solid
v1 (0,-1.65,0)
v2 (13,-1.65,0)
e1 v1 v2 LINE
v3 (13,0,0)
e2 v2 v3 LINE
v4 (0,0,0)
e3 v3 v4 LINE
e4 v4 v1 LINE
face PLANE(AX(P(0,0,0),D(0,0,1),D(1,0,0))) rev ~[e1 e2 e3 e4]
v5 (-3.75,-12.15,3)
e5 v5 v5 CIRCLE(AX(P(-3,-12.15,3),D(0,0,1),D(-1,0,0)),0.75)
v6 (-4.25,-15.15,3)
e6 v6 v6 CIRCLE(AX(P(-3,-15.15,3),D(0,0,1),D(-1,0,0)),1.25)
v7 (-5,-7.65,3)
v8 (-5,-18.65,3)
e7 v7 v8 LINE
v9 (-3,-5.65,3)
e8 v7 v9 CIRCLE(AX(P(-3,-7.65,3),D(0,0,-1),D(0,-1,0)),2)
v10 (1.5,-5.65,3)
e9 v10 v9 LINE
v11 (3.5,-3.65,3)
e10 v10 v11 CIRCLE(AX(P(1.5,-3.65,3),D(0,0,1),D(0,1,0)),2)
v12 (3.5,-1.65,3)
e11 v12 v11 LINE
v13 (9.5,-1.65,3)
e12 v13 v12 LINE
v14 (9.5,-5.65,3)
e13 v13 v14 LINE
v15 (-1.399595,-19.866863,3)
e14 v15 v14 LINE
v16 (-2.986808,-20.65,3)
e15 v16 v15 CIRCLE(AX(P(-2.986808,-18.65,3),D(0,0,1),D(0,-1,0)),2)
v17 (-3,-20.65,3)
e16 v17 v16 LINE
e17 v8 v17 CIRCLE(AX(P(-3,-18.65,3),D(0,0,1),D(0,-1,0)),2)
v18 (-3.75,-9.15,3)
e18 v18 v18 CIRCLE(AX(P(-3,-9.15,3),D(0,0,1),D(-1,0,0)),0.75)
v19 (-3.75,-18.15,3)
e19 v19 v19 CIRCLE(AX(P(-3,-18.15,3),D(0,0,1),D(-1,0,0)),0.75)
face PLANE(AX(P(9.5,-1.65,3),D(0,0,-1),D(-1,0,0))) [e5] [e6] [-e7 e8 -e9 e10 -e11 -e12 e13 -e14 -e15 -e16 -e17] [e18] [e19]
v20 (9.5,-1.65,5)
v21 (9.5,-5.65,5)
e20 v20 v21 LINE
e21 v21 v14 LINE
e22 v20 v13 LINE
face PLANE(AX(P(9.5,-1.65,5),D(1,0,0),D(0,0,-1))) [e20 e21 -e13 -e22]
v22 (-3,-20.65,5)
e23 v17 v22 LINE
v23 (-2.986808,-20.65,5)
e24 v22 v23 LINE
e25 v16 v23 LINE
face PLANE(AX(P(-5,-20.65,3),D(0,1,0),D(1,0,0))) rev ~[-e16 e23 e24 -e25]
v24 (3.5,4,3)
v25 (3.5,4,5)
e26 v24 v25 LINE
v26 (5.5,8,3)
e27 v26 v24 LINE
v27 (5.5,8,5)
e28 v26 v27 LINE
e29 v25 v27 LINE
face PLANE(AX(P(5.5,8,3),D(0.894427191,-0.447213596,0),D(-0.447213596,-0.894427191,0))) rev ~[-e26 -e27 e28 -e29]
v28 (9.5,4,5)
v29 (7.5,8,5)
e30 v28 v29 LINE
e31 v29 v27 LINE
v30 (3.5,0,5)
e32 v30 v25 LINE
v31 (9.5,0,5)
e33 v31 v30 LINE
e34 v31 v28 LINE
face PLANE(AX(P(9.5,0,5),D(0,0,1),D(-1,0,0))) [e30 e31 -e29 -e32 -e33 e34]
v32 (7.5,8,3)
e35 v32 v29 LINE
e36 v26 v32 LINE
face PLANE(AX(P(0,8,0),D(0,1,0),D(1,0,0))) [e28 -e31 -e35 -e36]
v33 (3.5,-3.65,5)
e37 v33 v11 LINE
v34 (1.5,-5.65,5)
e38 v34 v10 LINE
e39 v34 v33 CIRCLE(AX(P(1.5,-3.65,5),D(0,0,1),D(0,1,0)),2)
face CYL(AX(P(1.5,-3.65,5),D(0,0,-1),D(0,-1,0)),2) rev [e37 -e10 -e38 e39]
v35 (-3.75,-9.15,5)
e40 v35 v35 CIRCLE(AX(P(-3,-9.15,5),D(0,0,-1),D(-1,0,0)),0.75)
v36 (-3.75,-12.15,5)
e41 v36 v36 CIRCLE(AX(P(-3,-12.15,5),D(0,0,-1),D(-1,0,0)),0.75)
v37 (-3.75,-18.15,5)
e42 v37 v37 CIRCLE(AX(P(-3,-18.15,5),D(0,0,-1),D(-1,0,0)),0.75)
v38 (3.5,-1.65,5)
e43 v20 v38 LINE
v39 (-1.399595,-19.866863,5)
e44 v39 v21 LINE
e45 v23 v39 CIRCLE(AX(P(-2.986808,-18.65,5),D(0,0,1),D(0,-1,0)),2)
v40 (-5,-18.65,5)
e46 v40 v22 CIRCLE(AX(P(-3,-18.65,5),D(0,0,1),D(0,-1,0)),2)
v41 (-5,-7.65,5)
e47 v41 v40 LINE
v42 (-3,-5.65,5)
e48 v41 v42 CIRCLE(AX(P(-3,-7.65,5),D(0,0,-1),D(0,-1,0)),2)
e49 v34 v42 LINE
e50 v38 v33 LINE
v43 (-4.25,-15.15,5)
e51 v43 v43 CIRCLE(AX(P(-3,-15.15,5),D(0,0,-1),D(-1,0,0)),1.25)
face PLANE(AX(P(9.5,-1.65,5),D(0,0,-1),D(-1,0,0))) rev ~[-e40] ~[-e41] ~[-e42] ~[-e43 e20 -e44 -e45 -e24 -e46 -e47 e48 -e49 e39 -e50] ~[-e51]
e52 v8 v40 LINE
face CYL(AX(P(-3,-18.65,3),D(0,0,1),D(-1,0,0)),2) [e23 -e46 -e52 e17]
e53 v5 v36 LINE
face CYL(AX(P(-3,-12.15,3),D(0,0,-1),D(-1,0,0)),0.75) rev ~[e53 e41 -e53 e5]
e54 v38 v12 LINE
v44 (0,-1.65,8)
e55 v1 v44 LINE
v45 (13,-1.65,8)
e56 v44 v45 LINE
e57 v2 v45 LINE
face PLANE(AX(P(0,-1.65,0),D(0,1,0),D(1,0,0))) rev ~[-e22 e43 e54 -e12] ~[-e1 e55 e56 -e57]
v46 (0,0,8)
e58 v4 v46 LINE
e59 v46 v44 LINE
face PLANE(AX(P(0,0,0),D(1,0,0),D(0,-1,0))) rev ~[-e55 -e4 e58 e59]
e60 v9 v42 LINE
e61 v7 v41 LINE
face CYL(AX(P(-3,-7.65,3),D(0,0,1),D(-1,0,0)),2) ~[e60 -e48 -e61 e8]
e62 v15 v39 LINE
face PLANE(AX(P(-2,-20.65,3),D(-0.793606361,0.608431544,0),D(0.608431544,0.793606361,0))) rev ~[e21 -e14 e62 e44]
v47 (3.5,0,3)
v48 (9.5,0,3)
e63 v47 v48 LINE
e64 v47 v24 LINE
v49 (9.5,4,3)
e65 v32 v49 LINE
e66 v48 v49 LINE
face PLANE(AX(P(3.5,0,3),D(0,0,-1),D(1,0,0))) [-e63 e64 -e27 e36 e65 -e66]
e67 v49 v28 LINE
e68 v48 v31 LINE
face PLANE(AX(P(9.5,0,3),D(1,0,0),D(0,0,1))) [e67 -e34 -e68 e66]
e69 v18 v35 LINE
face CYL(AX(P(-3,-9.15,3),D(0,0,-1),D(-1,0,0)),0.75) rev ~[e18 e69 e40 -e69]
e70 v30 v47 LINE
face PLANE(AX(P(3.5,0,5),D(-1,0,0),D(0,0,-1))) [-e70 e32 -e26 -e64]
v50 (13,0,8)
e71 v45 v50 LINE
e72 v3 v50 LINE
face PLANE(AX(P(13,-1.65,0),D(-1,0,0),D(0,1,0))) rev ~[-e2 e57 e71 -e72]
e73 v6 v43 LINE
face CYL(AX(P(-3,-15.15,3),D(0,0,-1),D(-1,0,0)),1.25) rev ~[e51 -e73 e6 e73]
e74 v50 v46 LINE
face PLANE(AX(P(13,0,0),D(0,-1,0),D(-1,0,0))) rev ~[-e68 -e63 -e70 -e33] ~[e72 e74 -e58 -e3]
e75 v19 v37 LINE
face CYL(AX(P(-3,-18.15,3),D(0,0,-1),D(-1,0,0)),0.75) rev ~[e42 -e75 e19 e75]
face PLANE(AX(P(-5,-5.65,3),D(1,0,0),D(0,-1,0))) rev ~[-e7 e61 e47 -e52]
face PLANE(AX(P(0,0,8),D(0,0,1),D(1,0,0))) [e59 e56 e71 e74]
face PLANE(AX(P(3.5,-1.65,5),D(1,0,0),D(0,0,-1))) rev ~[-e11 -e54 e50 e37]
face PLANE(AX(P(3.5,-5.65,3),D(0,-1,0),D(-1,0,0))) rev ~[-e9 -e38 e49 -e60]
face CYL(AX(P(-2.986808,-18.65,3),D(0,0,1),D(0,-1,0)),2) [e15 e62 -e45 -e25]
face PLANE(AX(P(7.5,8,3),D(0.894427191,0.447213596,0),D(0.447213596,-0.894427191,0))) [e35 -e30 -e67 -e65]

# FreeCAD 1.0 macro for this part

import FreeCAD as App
import Part
import Sketcher

V = App.Vector
Q = App.Units.Quantity


def edges_at(feature, points):
    """Names of the edges that pass closest to the given points."""
    edges = feature.Shape.Edges
    near = lambda p: min(range(len(edges)), key=lambda i: edges[i].distToShape(Part.Vertex(*p))[0])
    return sorted({f"Edge{near(p) + 1}" for p in points})

doc = App.newDocument("Part")
body = doc.addObject("PartDesign::Body", "Body")

# Sketch on XY plane
sketch1 = doc.addObject("Sketcher::SketchObject", "Sketch")
body.addObject(sketch1)
sketch1.AttachmentSupport = (doc.XY_Plane, [""])
sketch1.MapMode = "FlatFace"
sketch1.addGeometry([
    Part.LineSegment(V(13, 0, 0), V(0, 0, 0)),
    Part.LineSegment(V(0, 0, 0), V(0, -1.65, 0)),
    Part.LineSegment(V(0, -1.65, 0), V(13, -1.65, 0)),
    Part.LineSegment(V(13, -1.65, 0), V(13, 0, 0)),
], False)
sketch1.addConstraint([
    Sketcher.Constraint("Coincident", 0, 2, 1, 1),
    Sketcher.Constraint("Coincident", 1, 2, 2, 1),
    Sketcher.Constraint("Coincident", 2, 2, 3, 1),
    Sketcher.Constraint("Coincident", 3, 2, 0, 1),
    Sketcher.Constraint("Horizontal", 0),
    Sketcher.Constraint("Vertical", 1),
    Sketcher.Constraint("Horizontal", 2),
    Sketcher.Constraint("Vertical", 3),
    Sketcher.Constraint("Coincident", 0, 2, -1, 1),
    Sketcher.Constraint("DistanceX", 0, 2, 0, 1, Q("13 mm")),
    Sketcher.Constraint("DistanceY", 1, 2, 1, 1, Q("1.65 mm")),
])
pad1 = doc.addObject("PartDesign::Pad", "Pad")
body.addObject(pad1)
pad1.Profile = sketch1
pad1.Length = 8

# Sketch on XZ plane
sketch2 = doc.addObject("Sketcher::SketchObject", "Sketch001")
body.addObject(sketch2)
sketch2.AttachmentSupport = (doc.XZ_Plane, [""])
sketch2.MapMode = "FlatFace"
sketch2.addGeometry([
    Part.LineSegment(V(9.5, 3, 0), V(3.5, 3, 0)),
    Part.LineSegment(V(3.5, 3, 0), V(3.5, 5, 0)),
    Part.LineSegment(V(3.5, 5, 0), V(9.5, 5, 0)),
    Part.LineSegment(V(9.5, 5, 0), V(9.5, 3, 0)),
], False)
sketch2.addConstraint([
    Sketcher.Constraint("Coincident", 0, 2, 1, 1),
    Sketcher.Constraint("Coincident", 1, 2, 2, 1),
    Sketcher.Constraint("Coincident", 2, 2, 3, 1),
    Sketcher.Constraint("Coincident", 3, 2, 0, 1),
    Sketcher.Constraint("Horizontal", 0),
    Sketcher.Constraint("Vertical", 1),
    Sketcher.Constraint("Horizontal", 2),
    Sketcher.Constraint("Vertical", 3),
    Sketcher.Constraint("DistanceY", -1, 1, 0, 2, Q("3 mm")),
    Sketcher.Constraint("DistanceX", -1, 1, 0, 2, Q("3.5 mm")),
    Sketcher.Constraint("DistanceX", 0, 2, 0, 1, Q("6 mm")),
    Sketcher.Constraint("DistanceY", 1, 1, 1, 2, Q("2 mm")),
])
pad2 = doc.addObject("PartDesign::Pad", "Pad001")
body.addObject(pad2)
pad2.Profile = sketch2
pad2.Length = 8
pad2.Reversed = True

# Sketch on XZ plane
sketch3 = doc.addObject("Sketcher::SketchObject", "Sketch002")
body.addObject(sketch3)
sketch3.AttachmentSupport = (doc.XZ_Plane, [""])
sketch3.MapMode = "FlatFace"
sketch3.AttachmentOffset = App.Placement(V(0, 0, 1.65), App.Rotation())
sketch3.addGeometry([
    Part.LineSegment(V(9.5, 3, 0), V(9.5, 5, 0)),
    Part.LineSegment(V(9.5, 5, 0), V(3.5, 5, 0)),
    Part.LineSegment(V(3.5, 5, 0), V(3.5, 3, 0)),
    Part.LineSegment(V(3.5, 3, 0), V(9.5, 3, 0)),
], False)
sketch3.addConstraint([
    Sketcher.Constraint("Coincident", 0, 2, 1, 1),
    Sketcher.Constraint("Coincident", 1, 2, 2, 1),
    Sketcher.Constraint("Coincident", 2, 2, 3, 1),
    Sketcher.Constraint("Coincident", 3, 2, 0, 1),
    Sketcher.Constraint("Vertical", 0),
    Sketcher.Constraint("Horizontal", 1),
    Sketcher.Constraint("Vertical", 2),
    Sketcher.Constraint("Horizontal", 3),
    Sketcher.Constraint("DistanceX", 1, 2, 1, 1, Q("6 mm")),
    Sketcher.Constraint("DistanceY", 0, 1, 0, 2, Q("2 mm")),
    Sketcher.Constraint("DistanceY", -1, 1, 0, 2, Q("5 mm")),
    Sketcher.Constraint("DistanceX", -1, 1, 0, 2, Q("9.5 mm")),
])
pad3 = doc.addObject("PartDesign::Pad", "Pad002")
body.addObject(pad3)
pad3.Profile = sketch3
pad3.Length = 4

# Sketch on XY plane
sketch4 = doc.addObject("Sketcher::SketchObject", "Sketch003")
body.addObject(sketch4)
sketch4.AttachmentSupport = (doc.XY_Plane, [""])
sketch4.MapMode = "FlatFace"
sketch4.AttachmentOffset = App.Placement(V(0, 0, 3), App.Rotation())
sketch4.addGeometry([
    Part.LineSegment(V(-5, -5.65, 0), V(9.5, -5.65, 0)),
    Part.LineSegment(V(9.5, -5.65, 0), V(-2, -20.65, 0)),
    Part.LineSegment(V(-2, -20.65, 0), V(-5, -20.65, 0)),
    Part.LineSegment(V(-5, -20.65, 0), V(-5, -5.65, 0)),
], False)
sketch4.addConstraint([
    Sketcher.Constraint("Coincident", 0, 2, 1, 1),
    Sketcher.Constraint("Coincident", 1, 2, 2, 1),
    Sketcher.Constraint("Coincident", 2, 2, 3, 1),
    Sketcher.Constraint("Coincident", 3, 2, 0, 1),
    Sketcher.Constraint("Horizontal", 0),
    Sketcher.Constraint("Horizontal", 2),
    Sketcher.Constraint("Vertical", 3),
    Sketcher.Constraint("DistanceX", 2, 2, 2, 1, Q("3 mm")),
    Sketcher.Constraint("DistanceY", 3, 1, 3, 2, Q("15 mm")),
    Sketcher.Constraint("DistanceX", 0, 1, 0, 2, Q("14.5 mm")),
    Sketcher.Constraint("DistanceX", 1, 2, -1, 1, Q("2 mm")),
    Sketcher.Constraint("DistanceY", 0, 2, -1, 1, Q("5.65 mm")),
])
pad4 = doc.addObject("PartDesign::Pad", "Pad003")
body.addObject(pad4)
pad4.Profile = sketch4
pad4.Length = 2
doc.recompute()

fillet = doc.addObject("PartDesign::Fillet", "Fillet")
body.addObject(fillet)
fillet.Base = (pad4, edges_at(pad4, [(3.5, -5.65, 4)]))
fillet.Radius = 2
doc.recompute()

fillet2 = doc.addObject("PartDesign::Fillet", "Fillet001")
body.addObject(fillet2)
fillet2.Base = (fillet, edges_at(fillet, [(-2, -20.65, 4), (-5, -20.65, 4)]))
fillet2.Radius = 2
doc.recompute()

fillet3 = doc.addObject("PartDesign::Fillet", "Fillet002")
body.addObject(fillet3)
fillet3.Base = (fillet2, edges_at(fillet2, [(-5, -5.65, 4)]))
fillet3.Radius = 2

# Sketch on XY plane
sketch5 = doc.addObject("Sketcher::SketchObject", "Sketch004")
body.addObject(sketch5)
sketch5.AttachmentSupport = (doc.XY_Plane, [""])
sketch5.MapMode = "FlatFace"
sketch5.AttachmentOffset = App.Placement(V(0, 0, 3), App.Rotation())
sketch5.addGeometry([
    Part.Circle(V(-3, -18.15, 0), V(0, 0, 1), 0.75),
    Part.Circle(V(-3, -9.15, 0), V(0, 0, 1), 0.75),
    Part.Circle(V(-3, -12.15, 0), V(0, 0, 1), 0.75),
    Part.Circle(V(-3, -15.15, 0), V(0, 0, 1), 1.25),
], False)
sketch5.addConstraint([
    Sketcher.Constraint("Equal", 0, 1),
    Sketcher.Constraint("Equal", 1, 2),
    Sketcher.Constraint("Vertical", 0, 3, 1, 3),
    Sketcher.Constraint("Vertical", 1, 3, 2, 3),
    Sketcher.Constraint("Vertical", 2, 3, 3, 3),
    Sketcher.Constraint("Diameter", 0, Q("1.5 mm")),
    Sketcher.Constraint("Diameter", 3, Q("2.5 mm")),
    Sketcher.Constraint("DistanceX", 0, 3, -1, 1, Q("3 mm")),
    Sketcher.Constraint("DistanceY", 2, 3, 1, 3, Q("3 mm")),
    Sketcher.Constraint("DistanceY", 0, 3, 3, 3, Q("3 mm")),
    Sketcher.Constraint("DistanceY", 3, 3, 2, 3, Q("3 mm")),
    Sketcher.Constraint("DistanceY", 0, 3, -1, 1, Q("18.15 mm")),
])
pocket1 = doc.addObject("PartDesign::Pocket", "Pocket")
body.addObject(pocket1)
pocket1.Profile = sketch5
pocket1.Length = 2
pocket1.Reversed = True

# Sketch on XY plane
sketch6 = doc.addObject("Sketcher::SketchObject", "Sketch005")
body.addObject(sketch6)
sketch6.AttachmentSupport = (doc.XY_Plane, [""])
sketch6.MapMode = "FlatFace"
sketch6.AttachmentOffset = App.Placement(V(0, 0, 3), App.Rotation())
sketch6.addGeometry([
    Part.LineSegment(V(9.5, 8, 0), V(9.5, 4, 0)),  # 0
    Part.LineSegment(V(9.5, 4, 0), V(7.5, 8, 0)),  # 1
    Part.LineSegment(V(7.5, 8, 0), V(9.5, 8, 0)),  # 2
    Part.LineSegment(V(5.5, 8, 0), V(3.5, 4, 0)),  # 3
    Part.LineSegment(V(3.5, 4, 0), V(3.5, 8, 0)),  # 4
    Part.LineSegment(V(3.5, 8, 0), V(5.5, 8, 0)),  # 5
], False)
sketch6.addConstraint([
    Sketcher.Constraint("Coincident", 0, 2, 1, 1),
    Sketcher.Constraint("Coincident", 1, 2, 2, 1),
    Sketcher.Constraint("Coincident", 2, 2, 0, 1),
    Sketcher.Constraint("Coincident", 3, 2, 4, 1),
    Sketcher.Constraint("Coincident", 4, 2, 5, 1),
    Sketcher.Constraint("Coincident", 5, 2, 3, 1),
    Sketcher.Constraint("Vertical", 0),
    Sketcher.Constraint("Horizontal", 2),
    Sketcher.Constraint("Vertical", 4),
    Sketcher.Constraint("Horizontal", 5),
    Sketcher.Constraint("Horizontal", 0, 2, 3, 2),
    Sketcher.Constraint("Horizontal", 2, 2, 4, 2),
    Sketcher.Constraint("Equal", 2, 5),
    Sketcher.Constraint("DistanceX", 2, 1, 2, 2, Q("2 mm")),
    Sketcher.Constraint("DistanceY", 0, 2, 0, 1, Q("4 mm")),
    Sketcher.Constraint("DistanceY", -1, 1, 0, 2, Q("4 mm")),
    Sketcher.Constraint("DistanceX", 3, 2, 1, 2, Q("4 mm")),
    Sketcher.Constraint("DistanceX", -1, 1, 0, 2, Q("9.5 mm")),
])
pocket2 = doc.addObject("PartDesign::Pocket", "Pocket001")
body.addObject(pocket2)
pocket2.Profile = sketch6
pocket2.Length = 10
pocket2.Reversed = True

doc.recompute()
